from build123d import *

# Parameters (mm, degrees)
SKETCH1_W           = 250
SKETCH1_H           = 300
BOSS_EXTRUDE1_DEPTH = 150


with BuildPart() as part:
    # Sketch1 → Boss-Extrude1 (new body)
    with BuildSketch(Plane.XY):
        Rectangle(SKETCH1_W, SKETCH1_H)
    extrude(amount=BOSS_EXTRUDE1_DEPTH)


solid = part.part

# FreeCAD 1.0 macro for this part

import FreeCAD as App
import Part
import Sketcher

V = App.Vector
Q = App.Units.Quantity


def add_polygon(sketch, points):
    """Adds a closed chain of lines whose ends are joined by coincident constraints."""
    first, n = sketch.GeometryCount, len(points)
    for a, b in zip(points, points[1:] + points[:1]):
        sketch.addGeometry(Part.LineSegment(App.Vector(*a, 0), App.Vector(*b, 0)), False)
    for i in range(n):
        sketch.addConstraint(Sketcher.Constraint("Coincident", first + i, 2, first + (i + 1) % n, 1))

doc = App.newDocument("Part")
body = doc.addObject("PartDesign::Body", "Body")

sketch1 = body.newObject("Sketcher::SketchObject", "Sketch")
sketch1.AttachmentSupport = (doc.getObject("XY_Plane"), [""])
sketch1.MapMode = "FlatFace"
add_polygon(sketch1, [(-125, 150), (-125, -150), (125, -150), (125, 150)])
sketch1.addConstraint(Sketcher.Constraint("Vertical", 0))
sketch1.addConstraint(Sketcher.Constraint("Horizontal", 1))
sketch1.addConstraint(Sketcher.Constraint("Vertical", 2))
sketch1.addConstraint(Sketcher.Constraint("Horizontal", 3))
sketch1.addConstraint(Sketcher.Constraint("Symmetric", 0, 2, 2, 2, -1, 1))
sketch1.addConstraint(Sketcher.Constraint("DistanceX", 1, 1, 1, 2, Q("250 mm")))
sketch1.addConstraint(Sketcher.Constraint("DistanceY", 0, 2, 0, 1, Q("300 mm")))
pad1 = body.newObject("PartDesign::Pad", "Pad")
pad1.Profile = sketch1
pad1.Length = 150

doc.recompute()
